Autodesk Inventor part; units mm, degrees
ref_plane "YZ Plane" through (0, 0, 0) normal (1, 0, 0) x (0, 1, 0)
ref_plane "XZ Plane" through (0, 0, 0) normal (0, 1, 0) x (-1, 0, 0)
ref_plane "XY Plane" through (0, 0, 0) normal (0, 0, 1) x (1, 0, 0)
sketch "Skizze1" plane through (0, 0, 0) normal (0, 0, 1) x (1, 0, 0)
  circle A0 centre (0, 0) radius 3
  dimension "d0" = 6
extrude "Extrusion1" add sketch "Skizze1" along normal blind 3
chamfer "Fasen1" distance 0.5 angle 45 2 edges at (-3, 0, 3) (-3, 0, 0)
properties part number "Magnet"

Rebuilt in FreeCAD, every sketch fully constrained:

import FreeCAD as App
import Part
import Sketcher
from FreeCAD import Vector
Q = App.Units.Quantity


def edges_at(feature, points):
    """Names of the edges that pass closest to the given points."""
    edges = feature.Shape.Edges
    near = lambda p: min(range(len(edges)), key=lambda i: edges[i].distToShape(Part.Vertex(*p))[0])
    return sorted({f"Edge{near(p) + 1}" for p in points})

doc = App.newDocument("Part")
body = doc.addObject("PartDesign::Body", "Body")

sketch1 = body.newObject("Sketcher::SketchObject", "Sketch")
sketch1.AttachmentSupport = (doc.getObject("XY_Plane"), [""])
sketch1.MapMode = "FlatFace"
sketch1.addGeometry(Part.Circle(Vector(0, 0, 0), Vector(0, 0, 1), 3), False)
sketch1.addConstraint(Sketcher.Constraint("Coincident", 0, 3, -1, 1))
sketch1.addConstraint(Sketcher.Constraint("Diameter", 0, Q("6 mm")))
pad1 = body.newObject("PartDesign::Pad", "Pad")
pad1.Profile = sketch1
pad1.Length = 3
doc.recompute()

chamfer = body.newObject("PartDesign::Chamfer", "Chamfer")
chamfer.Base = (pad1, edges_at(pad1, [(-3, 0, 3), (-3, 0, 0)]))
chamfer.Size = 0.5

doc.recompute()
